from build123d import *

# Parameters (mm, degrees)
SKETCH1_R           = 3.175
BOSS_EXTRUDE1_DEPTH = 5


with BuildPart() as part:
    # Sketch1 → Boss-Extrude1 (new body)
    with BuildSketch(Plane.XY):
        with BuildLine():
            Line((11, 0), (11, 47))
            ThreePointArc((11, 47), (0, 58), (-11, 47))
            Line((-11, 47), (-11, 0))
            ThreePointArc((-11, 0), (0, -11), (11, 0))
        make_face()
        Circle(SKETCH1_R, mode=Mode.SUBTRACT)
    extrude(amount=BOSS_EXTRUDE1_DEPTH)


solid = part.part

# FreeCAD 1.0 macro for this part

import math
import FreeCAD as App
import Part
import Sketcher
from FreeCAD import Vector
Q = App.Units.Quantity

doc = App.newDocument("Part")
body = doc.addObject("PartDesign::Body", "Body")

# Sketch on XY plane
sketch1 = body.newObject("Sketcher::SketchObject", "Sketch")
sketch1.AttachmentSupport = (doc.getObject("XY_Plane"), [""])
sketch1.MapMode = "FlatFace"
sketch1.addGeometry([
    Part.LineSegment(Vector(11, 0, 0), Vector(11, 47, 0)),  # 0
    Part.ArcOfCircle(Part.Circle(Vector(0, 47, 0), Vector(0, 0, 1), 11), math.radians(0), math.radians(180)),  # 1
    Part.LineSegment(Vector(-11, 47, 0), Vector(-11, 0, 0)),  # 2
    Part.ArcOfCircle(Part.Circle(Vector(0, 0, 0), Vector(0, 0, 1), 11), math.radians(180), math.radians(360)),  # 3
    Part.Circle(Vector(0, 0, 0), Vector(0, 0, 1), 3.2),  # 4
], False)
sketch1.addConstraint([
    Sketcher.Constraint("Tangent", 0, 2, 1, 1),
    Sketcher.Constraint("Tangent", 1, 2, 2, 1),
    Sketcher.Constraint("Tangent", 2, 2, 3, 1),
    Sketcher.Constraint("Tangent", 3, 2, 0, 1),
    Sketcher.Constraint("Vertical", 0),
    Sketcher.Constraint("Vertical", 2),
    Sketcher.Constraint("Coincident", 3, 3, -1, 1),
    Sketcher.Constraint("Coincident", 4, 3, -1, 1),
    Sketcher.Constraint("Radius", 1, Q("11 mm")),
    Sketcher.Constraint("Diameter", 4, Q("6.35 mm")),
    Sketcher.Constraint("DistanceY", 0, 1, 0, 2, Q("47 mm")),
])
pad1 = body.newObject("PartDesign::Pad", "Pad")
pad1.Profile = sketch1
pad1.Length = 5

doc.recompute()
